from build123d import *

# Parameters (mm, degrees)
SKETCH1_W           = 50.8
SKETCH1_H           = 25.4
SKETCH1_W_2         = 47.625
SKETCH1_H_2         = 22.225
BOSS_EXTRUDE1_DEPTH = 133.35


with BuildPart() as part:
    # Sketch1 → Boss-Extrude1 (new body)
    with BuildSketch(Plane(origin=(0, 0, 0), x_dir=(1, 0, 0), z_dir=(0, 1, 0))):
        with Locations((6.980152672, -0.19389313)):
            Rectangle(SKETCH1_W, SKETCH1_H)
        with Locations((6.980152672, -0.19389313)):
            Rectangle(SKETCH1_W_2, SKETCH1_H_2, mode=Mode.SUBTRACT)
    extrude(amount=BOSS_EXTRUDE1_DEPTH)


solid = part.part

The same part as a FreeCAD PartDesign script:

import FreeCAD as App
import Part
import Sketcher

V = App.Vector
Q = App.Units.Quantity


def add_polygon(sketch, points):
    """Adds a closed chain of lines whose ends are joined by coincident constraints."""
    first, n = sketch.GeometryCount, len(points)
    for a, b in zip(points, points[1:] + points[:1]):
        sketch.addGeometry(Part.LineSegment(App.Vector(*a, 0), App.Vector(*b, 0)), False)
    for i in range(n):
        sketch.addConstraint(Sketcher.Constraint("Coincident", first + i, 2, first + (i + 1) % n, 1))

doc = App.newDocument("Part")
body = doc.addObject("PartDesign::Body", "Body")

# Sketch on XZ plane
sketch1 = body.newObject("Sketcher::SketchObject", "Sketch")
sketch1.AttachmentSupport = (doc.getObject("XZ_Plane"), [""])
sketch1.MapMode = "FlatFace"
add_polygon(sketch1, [(-18.419847, -12.506107), (-18.419847, 12.893893), (32.380153, 12.893893), (32.380153, -12.506107)])  # lines 0-3
add_polygon(sketch1, [(30.792653, 11.306393), (-16.832347, 11.306393), (-16.832347, -10.918607), (30.792653, -10.918607)])  # lines 4-7
sketch1.addConstraint(Sketcher.Constraint("Vertical", 0))
sketch1.addConstraint(Sketcher.Constraint("Horizontal", 1))
sketch1.addConstraint(Sketcher.Constraint("Vertical", 2))
sketch1.addConstraint(Sketcher.Constraint("Horizontal", 3))
sketch1.addConstraint(Sketcher.Constraint("Horizontal", 4))
sketch1.addConstraint(Sketcher.Constraint("Vertical", 5))
sketch1.addConstraint(Sketcher.Constraint("Horizontal", 6))
sketch1.addConstraint(Sketcher.Constraint("Vertical", 7))
sketch1.addConstraint(Sketcher.Constraint("DistanceX", 1, 1, 1, 2, Q("2 in")))
sketch1.addConstraint(Sketcher.Constraint("DistanceY", 0, 1, 0, 2, Q("1 in")))
sketch1.addConstraint(Sketcher.Constraint("DistanceX", 4, 2, 4, 1, Q("1.875 in")))
sketch1.addConstraint(Sketcher.Constraint("DistanceY", 5, 2, 5, 1, Q("0.875 in")))
sketch1.addConstraint(Sketcher.Constraint("DistanceX", 0, 2, 4, 2, Q("0.0625 in")))
sketch1.addConstraint(Sketcher.Constraint("DistanceY", 4, 2, 0, 2, Q("0.0625 in")))
sketch1.addConstraint(Sketcher.Constraint("DistanceX", 0, 2, -1, 1, 18.419847))
sketch1.addConstraint(Sketcher.Constraint("DistanceY", -1, 1, 0, 2, 12.893893))
pad1 = body.newObject("PartDesign::Pad", "Pad")
pad1.Profile = sketch1
pad1.Length = Q("5.25 in")
pad1.Reversed = True

doc.recompute()
